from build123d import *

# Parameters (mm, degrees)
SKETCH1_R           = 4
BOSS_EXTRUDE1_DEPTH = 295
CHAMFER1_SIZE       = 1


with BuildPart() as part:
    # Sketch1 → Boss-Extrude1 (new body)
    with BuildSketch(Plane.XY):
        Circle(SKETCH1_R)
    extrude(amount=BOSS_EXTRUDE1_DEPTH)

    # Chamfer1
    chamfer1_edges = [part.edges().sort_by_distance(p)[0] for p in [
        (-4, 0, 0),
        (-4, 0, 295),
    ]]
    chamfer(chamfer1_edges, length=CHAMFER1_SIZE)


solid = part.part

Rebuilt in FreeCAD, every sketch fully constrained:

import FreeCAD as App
import Part
import Sketcher

V = App.Vector
Q = App.Units.Quantity


def edges_at(feature, points):
    """Names of the edges that pass closest to the given points."""
    edges = feature.Shape.Edges
    near = lambda p: min(range(len(edges)), key=lambda i: edges[i].distToShape(Part.Vertex(*p))[0])
    return sorted({f"Edge{near(p) + 1}" for p in points})

doc = App.newDocument("Part")
params = doc.addObject("Spreadsheet::Sheet", "Params")
for row, (alias, value) in enumerate([
    ("sketch1_diameter", "8 mm"),
    ("pad1_length", "295 mm"),
    ("chamfer_size", "1 mm"),
], start=1):
    params.set(f"A{row}", alias)
    params.set(f"B{row}", "=" + value)
    params.setAlias(f"B{row}", alias)

body = doc.addObject("PartDesign::Body", "Body")

# Sketch on XY plane
sketch1 = body.newObject("Sketcher::SketchObject", "Sketch")
sketch1.AttachmentSupport = (doc.getObject("XY_Plane"), [""])
sketch1.MapMode = "FlatFace"
sketch1.addGeometry(Part.Circle(V(0, 0, 0), V(0, 0, 1), 4), False)
sketch1.addConstraint([
    Sketcher.Constraint("Coincident", 0, 3, -1, 1),
    Sketcher.Constraint("Diameter", 0, Q("8 mm")),
])
sketch1.setExpression("Constraints[1]", "Params.sketch1_diameter")
pad1 = body.newObject("PartDesign::Pad", "Pad")
pad1.Profile = sketch1
pad1.setExpression("Length", "Params.pad1_length")
doc.recompute()

chamfer = body.newObject("PartDesign::Chamfer", "Chamfer")
chamfer.Base = (pad1, edges_at(pad1, [(-4, 0, 0), (-4, 0, 295)]))
chamfer.setExpression("Size", "Params.chamfer_size")

doc.recompute()
